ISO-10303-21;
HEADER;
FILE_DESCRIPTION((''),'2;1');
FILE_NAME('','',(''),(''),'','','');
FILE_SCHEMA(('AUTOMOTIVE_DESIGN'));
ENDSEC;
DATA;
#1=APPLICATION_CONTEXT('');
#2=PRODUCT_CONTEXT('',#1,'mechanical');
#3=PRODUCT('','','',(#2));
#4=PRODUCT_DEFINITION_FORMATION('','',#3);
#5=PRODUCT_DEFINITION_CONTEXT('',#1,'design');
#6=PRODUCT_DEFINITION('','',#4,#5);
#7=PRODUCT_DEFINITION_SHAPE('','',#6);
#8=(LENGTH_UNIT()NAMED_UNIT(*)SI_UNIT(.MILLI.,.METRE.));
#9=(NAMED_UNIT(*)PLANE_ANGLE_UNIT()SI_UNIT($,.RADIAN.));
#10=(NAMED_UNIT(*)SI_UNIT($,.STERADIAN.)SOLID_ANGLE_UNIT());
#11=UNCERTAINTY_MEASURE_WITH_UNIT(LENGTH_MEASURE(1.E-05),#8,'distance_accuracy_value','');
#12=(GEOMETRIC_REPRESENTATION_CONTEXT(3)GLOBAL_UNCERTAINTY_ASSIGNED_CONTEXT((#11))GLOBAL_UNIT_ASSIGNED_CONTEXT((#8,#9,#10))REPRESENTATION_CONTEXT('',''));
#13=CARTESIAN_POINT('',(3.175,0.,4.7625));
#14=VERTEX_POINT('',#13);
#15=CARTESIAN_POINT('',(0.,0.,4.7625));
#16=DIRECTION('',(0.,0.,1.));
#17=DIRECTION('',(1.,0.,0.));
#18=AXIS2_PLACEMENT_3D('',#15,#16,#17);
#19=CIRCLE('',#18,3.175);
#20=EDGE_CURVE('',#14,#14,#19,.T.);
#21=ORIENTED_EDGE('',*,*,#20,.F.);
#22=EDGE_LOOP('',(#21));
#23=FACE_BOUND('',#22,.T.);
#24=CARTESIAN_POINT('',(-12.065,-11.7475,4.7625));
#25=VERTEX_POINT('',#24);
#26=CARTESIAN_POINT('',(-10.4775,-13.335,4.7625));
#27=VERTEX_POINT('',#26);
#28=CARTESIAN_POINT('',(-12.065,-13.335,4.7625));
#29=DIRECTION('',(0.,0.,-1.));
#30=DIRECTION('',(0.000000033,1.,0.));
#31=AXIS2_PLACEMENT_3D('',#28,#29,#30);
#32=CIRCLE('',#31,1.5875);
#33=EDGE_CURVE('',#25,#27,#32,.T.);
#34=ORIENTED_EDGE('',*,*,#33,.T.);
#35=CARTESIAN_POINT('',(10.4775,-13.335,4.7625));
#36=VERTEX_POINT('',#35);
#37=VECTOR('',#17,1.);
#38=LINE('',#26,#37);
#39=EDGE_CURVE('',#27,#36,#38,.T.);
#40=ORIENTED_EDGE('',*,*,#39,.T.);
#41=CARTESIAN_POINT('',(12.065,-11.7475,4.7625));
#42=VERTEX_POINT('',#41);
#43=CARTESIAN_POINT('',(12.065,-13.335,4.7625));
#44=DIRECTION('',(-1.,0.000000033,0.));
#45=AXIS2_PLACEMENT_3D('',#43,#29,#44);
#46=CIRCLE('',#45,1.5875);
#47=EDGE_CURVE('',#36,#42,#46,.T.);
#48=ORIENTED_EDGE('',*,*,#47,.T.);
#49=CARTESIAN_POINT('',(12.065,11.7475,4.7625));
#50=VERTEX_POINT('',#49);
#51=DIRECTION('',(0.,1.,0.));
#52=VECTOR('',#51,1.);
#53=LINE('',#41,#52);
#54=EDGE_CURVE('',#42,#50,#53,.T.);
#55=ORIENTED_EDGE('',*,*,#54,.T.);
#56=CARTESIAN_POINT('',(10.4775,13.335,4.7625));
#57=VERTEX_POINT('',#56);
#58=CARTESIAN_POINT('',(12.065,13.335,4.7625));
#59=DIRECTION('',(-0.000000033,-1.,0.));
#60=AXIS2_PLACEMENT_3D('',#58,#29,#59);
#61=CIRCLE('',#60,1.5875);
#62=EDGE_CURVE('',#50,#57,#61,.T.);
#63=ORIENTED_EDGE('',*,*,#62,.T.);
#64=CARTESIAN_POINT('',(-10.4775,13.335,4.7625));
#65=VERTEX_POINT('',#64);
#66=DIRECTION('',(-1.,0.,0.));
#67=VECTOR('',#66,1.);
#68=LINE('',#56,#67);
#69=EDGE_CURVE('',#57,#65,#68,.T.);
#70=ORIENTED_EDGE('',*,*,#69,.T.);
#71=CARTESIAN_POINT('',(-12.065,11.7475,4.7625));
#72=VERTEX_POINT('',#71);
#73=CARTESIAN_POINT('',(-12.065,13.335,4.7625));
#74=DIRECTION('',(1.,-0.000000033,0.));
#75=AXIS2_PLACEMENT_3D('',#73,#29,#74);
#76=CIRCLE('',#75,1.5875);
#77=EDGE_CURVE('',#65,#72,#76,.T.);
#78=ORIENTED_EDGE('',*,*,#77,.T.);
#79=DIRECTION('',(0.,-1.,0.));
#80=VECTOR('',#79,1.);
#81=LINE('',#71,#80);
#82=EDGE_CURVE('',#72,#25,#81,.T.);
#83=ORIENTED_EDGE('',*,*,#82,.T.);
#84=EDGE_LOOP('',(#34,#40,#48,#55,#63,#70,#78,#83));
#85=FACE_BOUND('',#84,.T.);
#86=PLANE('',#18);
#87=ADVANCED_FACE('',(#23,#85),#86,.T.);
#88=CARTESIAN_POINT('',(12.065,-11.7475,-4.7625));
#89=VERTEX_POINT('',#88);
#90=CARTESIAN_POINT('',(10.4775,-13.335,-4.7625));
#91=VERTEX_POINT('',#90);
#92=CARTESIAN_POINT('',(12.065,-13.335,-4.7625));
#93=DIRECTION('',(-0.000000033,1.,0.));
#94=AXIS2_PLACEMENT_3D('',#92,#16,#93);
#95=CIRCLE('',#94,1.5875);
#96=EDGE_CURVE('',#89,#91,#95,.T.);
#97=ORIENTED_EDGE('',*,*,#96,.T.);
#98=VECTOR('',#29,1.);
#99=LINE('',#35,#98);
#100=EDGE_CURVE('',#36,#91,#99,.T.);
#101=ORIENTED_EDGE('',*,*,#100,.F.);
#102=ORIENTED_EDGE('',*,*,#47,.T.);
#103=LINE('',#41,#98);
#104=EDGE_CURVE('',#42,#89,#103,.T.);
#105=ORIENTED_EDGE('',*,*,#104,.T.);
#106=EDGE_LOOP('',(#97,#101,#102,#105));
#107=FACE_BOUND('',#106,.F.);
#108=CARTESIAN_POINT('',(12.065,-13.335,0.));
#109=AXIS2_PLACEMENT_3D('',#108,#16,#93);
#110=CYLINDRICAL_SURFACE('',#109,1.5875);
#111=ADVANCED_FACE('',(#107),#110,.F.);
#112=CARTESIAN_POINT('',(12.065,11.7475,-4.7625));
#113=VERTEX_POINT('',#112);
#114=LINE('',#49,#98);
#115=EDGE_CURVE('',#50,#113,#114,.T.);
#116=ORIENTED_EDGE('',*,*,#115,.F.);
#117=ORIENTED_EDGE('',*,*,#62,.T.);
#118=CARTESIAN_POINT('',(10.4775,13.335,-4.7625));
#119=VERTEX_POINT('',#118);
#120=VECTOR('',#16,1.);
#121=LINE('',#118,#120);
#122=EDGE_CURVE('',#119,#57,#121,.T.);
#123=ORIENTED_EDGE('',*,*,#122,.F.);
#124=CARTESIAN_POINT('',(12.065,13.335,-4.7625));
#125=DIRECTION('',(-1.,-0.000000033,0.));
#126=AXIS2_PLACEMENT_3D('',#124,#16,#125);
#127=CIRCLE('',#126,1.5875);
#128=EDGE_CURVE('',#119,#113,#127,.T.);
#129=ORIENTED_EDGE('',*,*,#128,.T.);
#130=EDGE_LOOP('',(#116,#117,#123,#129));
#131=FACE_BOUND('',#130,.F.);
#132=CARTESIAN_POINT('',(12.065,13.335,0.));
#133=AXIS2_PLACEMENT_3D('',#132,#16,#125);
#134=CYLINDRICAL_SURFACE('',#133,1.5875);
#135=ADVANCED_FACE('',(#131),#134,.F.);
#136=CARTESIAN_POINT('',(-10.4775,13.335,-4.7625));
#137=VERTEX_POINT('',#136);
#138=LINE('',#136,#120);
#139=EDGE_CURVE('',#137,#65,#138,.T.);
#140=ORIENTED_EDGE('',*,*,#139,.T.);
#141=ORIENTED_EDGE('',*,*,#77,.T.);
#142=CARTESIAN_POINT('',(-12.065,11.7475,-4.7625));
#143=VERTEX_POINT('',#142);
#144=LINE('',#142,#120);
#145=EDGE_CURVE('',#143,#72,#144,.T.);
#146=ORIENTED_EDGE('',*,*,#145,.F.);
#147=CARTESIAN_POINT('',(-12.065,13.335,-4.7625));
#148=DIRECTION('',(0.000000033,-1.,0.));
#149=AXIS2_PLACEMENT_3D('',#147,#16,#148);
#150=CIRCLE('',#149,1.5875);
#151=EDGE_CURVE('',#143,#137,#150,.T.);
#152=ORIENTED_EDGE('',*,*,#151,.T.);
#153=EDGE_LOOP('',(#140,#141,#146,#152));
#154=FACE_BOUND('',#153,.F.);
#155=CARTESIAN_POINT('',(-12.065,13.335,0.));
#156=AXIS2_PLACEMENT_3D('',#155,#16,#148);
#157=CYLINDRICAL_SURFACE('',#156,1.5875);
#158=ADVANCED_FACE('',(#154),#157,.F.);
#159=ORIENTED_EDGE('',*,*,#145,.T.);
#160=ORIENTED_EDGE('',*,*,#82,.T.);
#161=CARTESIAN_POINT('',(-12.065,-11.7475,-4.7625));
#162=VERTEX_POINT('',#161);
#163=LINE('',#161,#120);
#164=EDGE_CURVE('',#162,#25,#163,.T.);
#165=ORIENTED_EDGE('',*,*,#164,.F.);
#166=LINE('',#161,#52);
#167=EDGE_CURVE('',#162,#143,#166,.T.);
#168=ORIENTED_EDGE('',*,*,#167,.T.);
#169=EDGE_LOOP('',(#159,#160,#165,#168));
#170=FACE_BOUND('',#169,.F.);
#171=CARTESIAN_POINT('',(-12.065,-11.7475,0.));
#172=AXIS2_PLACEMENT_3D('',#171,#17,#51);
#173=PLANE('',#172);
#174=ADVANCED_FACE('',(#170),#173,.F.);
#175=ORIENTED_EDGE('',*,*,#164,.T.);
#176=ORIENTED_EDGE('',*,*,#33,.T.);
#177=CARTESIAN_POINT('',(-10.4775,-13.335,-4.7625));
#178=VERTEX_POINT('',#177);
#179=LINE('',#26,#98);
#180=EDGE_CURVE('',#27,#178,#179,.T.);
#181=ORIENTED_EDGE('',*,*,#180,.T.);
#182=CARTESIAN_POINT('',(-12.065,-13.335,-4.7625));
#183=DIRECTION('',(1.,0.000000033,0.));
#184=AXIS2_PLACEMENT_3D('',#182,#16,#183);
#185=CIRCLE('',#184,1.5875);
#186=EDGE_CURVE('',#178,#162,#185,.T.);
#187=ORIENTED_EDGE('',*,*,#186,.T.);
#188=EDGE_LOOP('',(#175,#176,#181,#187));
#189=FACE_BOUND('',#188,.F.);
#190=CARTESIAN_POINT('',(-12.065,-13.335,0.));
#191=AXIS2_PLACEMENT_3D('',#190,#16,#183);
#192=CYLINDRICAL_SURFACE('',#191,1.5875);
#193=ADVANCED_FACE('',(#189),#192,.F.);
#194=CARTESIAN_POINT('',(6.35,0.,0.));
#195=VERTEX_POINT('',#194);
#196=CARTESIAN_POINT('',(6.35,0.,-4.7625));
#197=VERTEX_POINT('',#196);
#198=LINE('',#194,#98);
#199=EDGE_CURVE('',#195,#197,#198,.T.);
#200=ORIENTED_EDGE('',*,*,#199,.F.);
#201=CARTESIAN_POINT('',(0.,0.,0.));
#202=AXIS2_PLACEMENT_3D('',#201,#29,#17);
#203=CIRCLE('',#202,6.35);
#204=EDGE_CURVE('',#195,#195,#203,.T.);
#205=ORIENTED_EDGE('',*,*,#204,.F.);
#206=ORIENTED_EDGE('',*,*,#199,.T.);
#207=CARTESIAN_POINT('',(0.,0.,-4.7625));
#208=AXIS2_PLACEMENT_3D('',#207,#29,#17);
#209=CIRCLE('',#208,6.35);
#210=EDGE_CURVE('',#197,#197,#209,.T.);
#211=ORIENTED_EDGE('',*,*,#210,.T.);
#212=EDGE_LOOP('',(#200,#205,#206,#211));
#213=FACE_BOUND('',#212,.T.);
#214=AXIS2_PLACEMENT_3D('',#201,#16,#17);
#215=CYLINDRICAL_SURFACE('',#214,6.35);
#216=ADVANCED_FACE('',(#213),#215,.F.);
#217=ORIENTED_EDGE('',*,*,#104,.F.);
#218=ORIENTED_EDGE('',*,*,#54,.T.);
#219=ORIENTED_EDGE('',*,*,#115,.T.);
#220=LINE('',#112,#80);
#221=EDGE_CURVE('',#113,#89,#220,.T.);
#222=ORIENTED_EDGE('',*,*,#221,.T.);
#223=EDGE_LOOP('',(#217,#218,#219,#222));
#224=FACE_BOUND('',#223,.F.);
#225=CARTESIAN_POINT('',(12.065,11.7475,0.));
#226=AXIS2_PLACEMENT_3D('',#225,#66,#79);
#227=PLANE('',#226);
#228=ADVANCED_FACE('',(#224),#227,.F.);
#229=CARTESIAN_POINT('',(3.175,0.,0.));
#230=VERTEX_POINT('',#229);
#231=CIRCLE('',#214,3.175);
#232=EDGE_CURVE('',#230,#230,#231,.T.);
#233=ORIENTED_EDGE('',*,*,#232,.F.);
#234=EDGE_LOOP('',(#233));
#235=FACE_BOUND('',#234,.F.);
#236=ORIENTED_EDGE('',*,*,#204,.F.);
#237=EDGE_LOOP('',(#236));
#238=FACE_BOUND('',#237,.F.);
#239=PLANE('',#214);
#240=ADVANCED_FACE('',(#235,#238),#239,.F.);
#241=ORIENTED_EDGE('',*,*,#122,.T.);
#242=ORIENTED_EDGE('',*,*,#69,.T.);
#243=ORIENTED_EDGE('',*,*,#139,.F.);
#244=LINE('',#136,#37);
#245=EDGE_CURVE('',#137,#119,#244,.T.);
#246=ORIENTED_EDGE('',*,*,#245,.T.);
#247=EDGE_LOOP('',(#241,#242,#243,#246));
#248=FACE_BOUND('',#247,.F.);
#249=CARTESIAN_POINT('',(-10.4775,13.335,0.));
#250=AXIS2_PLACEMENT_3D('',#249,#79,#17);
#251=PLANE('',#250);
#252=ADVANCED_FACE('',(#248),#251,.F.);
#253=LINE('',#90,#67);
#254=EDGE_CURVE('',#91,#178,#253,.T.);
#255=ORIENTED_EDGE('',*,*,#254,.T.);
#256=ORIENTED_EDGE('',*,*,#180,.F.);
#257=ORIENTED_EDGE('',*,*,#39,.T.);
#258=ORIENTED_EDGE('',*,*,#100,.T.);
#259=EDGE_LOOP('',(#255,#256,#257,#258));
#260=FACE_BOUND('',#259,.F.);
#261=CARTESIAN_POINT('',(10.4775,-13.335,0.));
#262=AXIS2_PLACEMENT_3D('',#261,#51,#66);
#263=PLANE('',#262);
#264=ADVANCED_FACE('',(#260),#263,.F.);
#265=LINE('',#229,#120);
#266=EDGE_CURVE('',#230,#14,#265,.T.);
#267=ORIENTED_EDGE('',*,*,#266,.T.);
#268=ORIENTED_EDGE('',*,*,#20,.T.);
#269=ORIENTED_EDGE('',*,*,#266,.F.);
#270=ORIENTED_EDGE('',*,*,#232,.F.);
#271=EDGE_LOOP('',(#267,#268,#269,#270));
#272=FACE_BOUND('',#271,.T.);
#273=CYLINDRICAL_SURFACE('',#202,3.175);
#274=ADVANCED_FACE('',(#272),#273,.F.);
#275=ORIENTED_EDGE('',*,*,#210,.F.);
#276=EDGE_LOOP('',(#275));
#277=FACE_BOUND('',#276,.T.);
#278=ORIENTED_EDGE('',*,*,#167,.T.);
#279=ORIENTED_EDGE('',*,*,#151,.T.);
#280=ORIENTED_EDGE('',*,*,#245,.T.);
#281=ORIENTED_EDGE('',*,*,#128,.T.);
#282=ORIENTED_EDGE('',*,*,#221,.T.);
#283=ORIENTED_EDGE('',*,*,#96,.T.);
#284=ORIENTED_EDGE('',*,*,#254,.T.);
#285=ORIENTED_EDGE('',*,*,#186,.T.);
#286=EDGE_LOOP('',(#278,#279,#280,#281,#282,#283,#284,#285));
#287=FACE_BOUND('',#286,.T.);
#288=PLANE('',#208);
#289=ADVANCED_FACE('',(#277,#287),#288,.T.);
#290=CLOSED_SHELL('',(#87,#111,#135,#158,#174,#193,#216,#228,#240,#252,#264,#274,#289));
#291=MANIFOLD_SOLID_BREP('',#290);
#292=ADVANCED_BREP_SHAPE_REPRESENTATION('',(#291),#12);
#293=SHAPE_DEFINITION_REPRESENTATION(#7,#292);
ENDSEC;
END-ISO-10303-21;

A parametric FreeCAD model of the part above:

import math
import FreeCAD as App
import Part
import Sketcher
from FreeCAD import Vector
Q = App.Units.Quantity

doc = App.newDocument("Part")
body = doc.addObject("PartDesign::Body", "Body")

# Sketch on XY plane
sketch1 = doc.addObject("Sketcher::SketchObject", "Sketch")
body.addObject(sketch1)
sketch1.AttachmentSupport = (doc.XY_Plane, [""])
sketch1.MapMode = "FlatFace"
sketch1.addGeometry([
    Part.LineSegment(Vector(10.5, 13.3, 0), Vector(-10.5, 13.3, 0)),  # 0
    Part.ArcOfCircle(Part.Circle(Vector(-12.1, 13.3, 0), Vector(0, 0, 1), 1.6), math.radians(-90), math.radians(0)),  # 1
    Part.LineSegment(Vector(-12.1, 11.7, 0), Vector(-12.1, -11.7, 0)),  # 2
    Part.ArcOfCircle(Part.Circle(Vector(-12.1, -13.3, 0), Vector(0, 0, 1), 1.6), math.radians(0), math.radians(90)),  # 3
    Part.LineSegment(Vector(-10.5, -13.3, 0), Vector(10.5, -13.3, 0)),  # 4
    Part.ArcOfCircle(Part.Circle(Vector(12.1, -13.3, 0), Vector(0, 0, 1), 1.6), math.radians(90), math.radians(180)),  # 5
    Part.LineSegment(Vector(12.1, -11.7, 0), Vector(12.1, 11.7, 0)),  # 6
    Part.ArcOfCircle(Part.Circle(Vector(12.1, 13.3, 0), Vector(0, 0, 1), 1.6), math.radians(-180), math.radians(-90)),  # 7
    Part.Circle(Vector(0, 0, 0), Vector(0, 0, 1), 3.2),  # 8
], False)
sketch1.addConstraint([
    Sketcher.Constraint("Coincident", 0, 2, 1, 2),
    Sketcher.Constraint("Coincident", 1, 1, 2, 1),
    Sketcher.Constraint("Coincident", 2, 2, 3, 2),
    Sketcher.Constraint("Coincident", 3, 1, 4, 1),
    Sketcher.Constraint("Coincident", 4, 2, 5, 2),
    Sketcher.Constraint("Coincident", 5, 1, 6, 1),
    Sketcher.Constraint("Coincident", 6, 2, 7, 2),
    Sketcher.Constraint("Coincident", 7, 1, 0, 1),
    Sketcher.Constraint("Horizontal", 0),
    Sketcher.Constraint("Vertical", 2),
    Sketcher.Constraint("Horizontal", 4),
    Sketcher.Constraint("Vertical", 6),
    Sketcher.Constraint("Coincident", 8, 3, -1, 1),
    Sketcher.Constraint("Equal", 1, 3),
    Sketcher.Constraint("Equal", 3, 5),
    Sketcher.Constraint("Equal", 5, 7),
    Sketcher.Constraint("Symmetric", 1, 3, 5, 3, -1, 1),
    Sketcher.Constraint("Symmetric", 3, 3, 7, 3, -1, 1),
    Sketcher.Constraint("Symmetric", 3, 3, 5, 3, -2),
    Sketcher.Constraint("Horizontal", 7, 3, 0, 2),
    Sketcher.Constraint("Horizontal", 5, 3, 3, 1),
    Sketcher.Constraint("Vertical", 3, 3, 1, 1),
    Sketcher.Constraint("Vertical", 7, 3, 5, 1),
    Sketcher.Constraint("Diameter", 8, Q("0.25 in")),
    Sketcher.Constraint("Radius", 1, Q("0.0625 in")),
    Sketcher.Constraint("DistanceX", 0, 2, 0, 1, Q("0.825 in")),
    Sketcher.Constraint("DistanceY", 2, 2, 2, 1, Q("0.925 in")),
])
pad1 = doc.addObject("PartDesign::Pad", "Pad")
body.addObject(pad1)
pad1.Profile = sketch1
pad1.Length = Q("0.1875 in")

# Sketch on XY plane
sketch2 = doc.addObject("Sketcher::SketchObject", "Sketch001")
body.addObject(sketch2)
sketch2.AttachmentSupport = (doc.XY_Plane, [""])
sketch2.MapMode = "FlatFace"
sketch2.addGeometry([
    Part.ArcOfCircle(Part.Circle(Vector(12.1, 13.3, 0), Vector(0, 0, 1), 1.6), math.radians(-180), math.radians(-90)),  # 0
    Part.LineSegment(Vector(12.1, 11.7, 0), Vector(12.1, -11.7, 0)),  # 1
    Part.ArcOfCircle(Part.Circle(Vector(12.1, -13.3, 0), Vector(0, 0, 1), 1.6), math.radians(90), math.radians(180)),  # 2
    Part.LineSegment(Vector(10.5, -13.3, 0), Vector(-10.5, -13.3, 0)),  # 3
    Part.ArcOfCircle(Part.Circle(Vector(-12.1, -13.3, 0), Vector(0, 0, 1), 1.6), math.radians(0), math.radians(90)),  # 4
    Part.LineSegment(Vector(-12.1, -11.7, 0), Vector(-12.1, 11.7, 0)),  # 5
    Part.ArcOfCircle(Part.Circle(Vector(-12.1, 13.3, 0), Vector(0, 0, 1), 1.6), math.radians(-90), math.radians(0)),  # 6
    Part.LineSegment(Vector(-10.5, 13.3, 0), Vector(10.5, 13.3, 0)),  # 7
    Part.Circle(Vector(0, 0, 0), Vector(0, 0, 1), 6.3),  # 8
], False)
sketch2.addConstraint([
    Sketcher.Constraint("Coincident", 0, 2, 1, 1),
    Sketcher.Constraint("Coincident", 1, 2, 2, 1),
    Sketcher.Constraint("Coincident", 2, 2, 3, 1),
    Sketcher.Constraint("Coincident", 3, 2, 4, 1),
    Sketcher.Constraint("Coincident", 4, 2, 5, 1),
    Sketcher.Constraint("Coincident", 5, 2, 6, 1),
    Sketcher.Constraint("Coincident", 6, 2, 7, 1),
    Sketcher.Constraint("Coincident", 7, 2, 0, 1),
    Sketcher.Constraint("Vertical", 1),
    Sketcher.Constraint("Horizontal", 3),
    Sketcher.Constraint("Vertical", 5),
    Sketcher.Constraint("Horizontal", 7),
    Sketcher.Constraint("Coincident", 8, 3, -1, 1),
    Sketcher.Constraint("Equal", 0, 2),
    Sketcher.Constraint("Equal", 2, 4),
    Sketcher.Constraint("Equal", 4, 6),
    Sketcher.Constraint("Symmetric", 0, 3, 4, 3, -1, 1),
    Sketcher.Constraint("Symmetric", 2, 3, 6, 3, -1, 1),
    Sketcher.Constraint("Symmetric", 2, 3, 4, 3, -2),
    Sketcher.Constraint("Horizontal", 4, 3, 2, 2),
    Sketcher.Constraint("Horizontal", 0, 3, 6, 2),
    Sketcher.Constraint("Vertical", 2, 3, 0, 2),
    Sketcher.Constraint("Vertical", 6, 3, 4, 2),
    Sketcher.Constraint("Diameter", 8, Q("0.5 in")),
    Sketcher.Constraint("Radius", 0, Q("0.0625 in")),
    Sketcher.Constraint("DistanceX", 3, 2, 3, 1, Q("0.825 in")),
    Sketcher.Constraint("DistanceY", 1, 2, 1, 1, Q("0.925 in")),
])
pad2 = doc.addObject("PartDesign::Pad", "Pad001")
body.addObject(pad2)
pad2.Profile = sketch2
pad2.Length = Q("0.1875 in")
pad2.Reversed = True

doc.recompute()
